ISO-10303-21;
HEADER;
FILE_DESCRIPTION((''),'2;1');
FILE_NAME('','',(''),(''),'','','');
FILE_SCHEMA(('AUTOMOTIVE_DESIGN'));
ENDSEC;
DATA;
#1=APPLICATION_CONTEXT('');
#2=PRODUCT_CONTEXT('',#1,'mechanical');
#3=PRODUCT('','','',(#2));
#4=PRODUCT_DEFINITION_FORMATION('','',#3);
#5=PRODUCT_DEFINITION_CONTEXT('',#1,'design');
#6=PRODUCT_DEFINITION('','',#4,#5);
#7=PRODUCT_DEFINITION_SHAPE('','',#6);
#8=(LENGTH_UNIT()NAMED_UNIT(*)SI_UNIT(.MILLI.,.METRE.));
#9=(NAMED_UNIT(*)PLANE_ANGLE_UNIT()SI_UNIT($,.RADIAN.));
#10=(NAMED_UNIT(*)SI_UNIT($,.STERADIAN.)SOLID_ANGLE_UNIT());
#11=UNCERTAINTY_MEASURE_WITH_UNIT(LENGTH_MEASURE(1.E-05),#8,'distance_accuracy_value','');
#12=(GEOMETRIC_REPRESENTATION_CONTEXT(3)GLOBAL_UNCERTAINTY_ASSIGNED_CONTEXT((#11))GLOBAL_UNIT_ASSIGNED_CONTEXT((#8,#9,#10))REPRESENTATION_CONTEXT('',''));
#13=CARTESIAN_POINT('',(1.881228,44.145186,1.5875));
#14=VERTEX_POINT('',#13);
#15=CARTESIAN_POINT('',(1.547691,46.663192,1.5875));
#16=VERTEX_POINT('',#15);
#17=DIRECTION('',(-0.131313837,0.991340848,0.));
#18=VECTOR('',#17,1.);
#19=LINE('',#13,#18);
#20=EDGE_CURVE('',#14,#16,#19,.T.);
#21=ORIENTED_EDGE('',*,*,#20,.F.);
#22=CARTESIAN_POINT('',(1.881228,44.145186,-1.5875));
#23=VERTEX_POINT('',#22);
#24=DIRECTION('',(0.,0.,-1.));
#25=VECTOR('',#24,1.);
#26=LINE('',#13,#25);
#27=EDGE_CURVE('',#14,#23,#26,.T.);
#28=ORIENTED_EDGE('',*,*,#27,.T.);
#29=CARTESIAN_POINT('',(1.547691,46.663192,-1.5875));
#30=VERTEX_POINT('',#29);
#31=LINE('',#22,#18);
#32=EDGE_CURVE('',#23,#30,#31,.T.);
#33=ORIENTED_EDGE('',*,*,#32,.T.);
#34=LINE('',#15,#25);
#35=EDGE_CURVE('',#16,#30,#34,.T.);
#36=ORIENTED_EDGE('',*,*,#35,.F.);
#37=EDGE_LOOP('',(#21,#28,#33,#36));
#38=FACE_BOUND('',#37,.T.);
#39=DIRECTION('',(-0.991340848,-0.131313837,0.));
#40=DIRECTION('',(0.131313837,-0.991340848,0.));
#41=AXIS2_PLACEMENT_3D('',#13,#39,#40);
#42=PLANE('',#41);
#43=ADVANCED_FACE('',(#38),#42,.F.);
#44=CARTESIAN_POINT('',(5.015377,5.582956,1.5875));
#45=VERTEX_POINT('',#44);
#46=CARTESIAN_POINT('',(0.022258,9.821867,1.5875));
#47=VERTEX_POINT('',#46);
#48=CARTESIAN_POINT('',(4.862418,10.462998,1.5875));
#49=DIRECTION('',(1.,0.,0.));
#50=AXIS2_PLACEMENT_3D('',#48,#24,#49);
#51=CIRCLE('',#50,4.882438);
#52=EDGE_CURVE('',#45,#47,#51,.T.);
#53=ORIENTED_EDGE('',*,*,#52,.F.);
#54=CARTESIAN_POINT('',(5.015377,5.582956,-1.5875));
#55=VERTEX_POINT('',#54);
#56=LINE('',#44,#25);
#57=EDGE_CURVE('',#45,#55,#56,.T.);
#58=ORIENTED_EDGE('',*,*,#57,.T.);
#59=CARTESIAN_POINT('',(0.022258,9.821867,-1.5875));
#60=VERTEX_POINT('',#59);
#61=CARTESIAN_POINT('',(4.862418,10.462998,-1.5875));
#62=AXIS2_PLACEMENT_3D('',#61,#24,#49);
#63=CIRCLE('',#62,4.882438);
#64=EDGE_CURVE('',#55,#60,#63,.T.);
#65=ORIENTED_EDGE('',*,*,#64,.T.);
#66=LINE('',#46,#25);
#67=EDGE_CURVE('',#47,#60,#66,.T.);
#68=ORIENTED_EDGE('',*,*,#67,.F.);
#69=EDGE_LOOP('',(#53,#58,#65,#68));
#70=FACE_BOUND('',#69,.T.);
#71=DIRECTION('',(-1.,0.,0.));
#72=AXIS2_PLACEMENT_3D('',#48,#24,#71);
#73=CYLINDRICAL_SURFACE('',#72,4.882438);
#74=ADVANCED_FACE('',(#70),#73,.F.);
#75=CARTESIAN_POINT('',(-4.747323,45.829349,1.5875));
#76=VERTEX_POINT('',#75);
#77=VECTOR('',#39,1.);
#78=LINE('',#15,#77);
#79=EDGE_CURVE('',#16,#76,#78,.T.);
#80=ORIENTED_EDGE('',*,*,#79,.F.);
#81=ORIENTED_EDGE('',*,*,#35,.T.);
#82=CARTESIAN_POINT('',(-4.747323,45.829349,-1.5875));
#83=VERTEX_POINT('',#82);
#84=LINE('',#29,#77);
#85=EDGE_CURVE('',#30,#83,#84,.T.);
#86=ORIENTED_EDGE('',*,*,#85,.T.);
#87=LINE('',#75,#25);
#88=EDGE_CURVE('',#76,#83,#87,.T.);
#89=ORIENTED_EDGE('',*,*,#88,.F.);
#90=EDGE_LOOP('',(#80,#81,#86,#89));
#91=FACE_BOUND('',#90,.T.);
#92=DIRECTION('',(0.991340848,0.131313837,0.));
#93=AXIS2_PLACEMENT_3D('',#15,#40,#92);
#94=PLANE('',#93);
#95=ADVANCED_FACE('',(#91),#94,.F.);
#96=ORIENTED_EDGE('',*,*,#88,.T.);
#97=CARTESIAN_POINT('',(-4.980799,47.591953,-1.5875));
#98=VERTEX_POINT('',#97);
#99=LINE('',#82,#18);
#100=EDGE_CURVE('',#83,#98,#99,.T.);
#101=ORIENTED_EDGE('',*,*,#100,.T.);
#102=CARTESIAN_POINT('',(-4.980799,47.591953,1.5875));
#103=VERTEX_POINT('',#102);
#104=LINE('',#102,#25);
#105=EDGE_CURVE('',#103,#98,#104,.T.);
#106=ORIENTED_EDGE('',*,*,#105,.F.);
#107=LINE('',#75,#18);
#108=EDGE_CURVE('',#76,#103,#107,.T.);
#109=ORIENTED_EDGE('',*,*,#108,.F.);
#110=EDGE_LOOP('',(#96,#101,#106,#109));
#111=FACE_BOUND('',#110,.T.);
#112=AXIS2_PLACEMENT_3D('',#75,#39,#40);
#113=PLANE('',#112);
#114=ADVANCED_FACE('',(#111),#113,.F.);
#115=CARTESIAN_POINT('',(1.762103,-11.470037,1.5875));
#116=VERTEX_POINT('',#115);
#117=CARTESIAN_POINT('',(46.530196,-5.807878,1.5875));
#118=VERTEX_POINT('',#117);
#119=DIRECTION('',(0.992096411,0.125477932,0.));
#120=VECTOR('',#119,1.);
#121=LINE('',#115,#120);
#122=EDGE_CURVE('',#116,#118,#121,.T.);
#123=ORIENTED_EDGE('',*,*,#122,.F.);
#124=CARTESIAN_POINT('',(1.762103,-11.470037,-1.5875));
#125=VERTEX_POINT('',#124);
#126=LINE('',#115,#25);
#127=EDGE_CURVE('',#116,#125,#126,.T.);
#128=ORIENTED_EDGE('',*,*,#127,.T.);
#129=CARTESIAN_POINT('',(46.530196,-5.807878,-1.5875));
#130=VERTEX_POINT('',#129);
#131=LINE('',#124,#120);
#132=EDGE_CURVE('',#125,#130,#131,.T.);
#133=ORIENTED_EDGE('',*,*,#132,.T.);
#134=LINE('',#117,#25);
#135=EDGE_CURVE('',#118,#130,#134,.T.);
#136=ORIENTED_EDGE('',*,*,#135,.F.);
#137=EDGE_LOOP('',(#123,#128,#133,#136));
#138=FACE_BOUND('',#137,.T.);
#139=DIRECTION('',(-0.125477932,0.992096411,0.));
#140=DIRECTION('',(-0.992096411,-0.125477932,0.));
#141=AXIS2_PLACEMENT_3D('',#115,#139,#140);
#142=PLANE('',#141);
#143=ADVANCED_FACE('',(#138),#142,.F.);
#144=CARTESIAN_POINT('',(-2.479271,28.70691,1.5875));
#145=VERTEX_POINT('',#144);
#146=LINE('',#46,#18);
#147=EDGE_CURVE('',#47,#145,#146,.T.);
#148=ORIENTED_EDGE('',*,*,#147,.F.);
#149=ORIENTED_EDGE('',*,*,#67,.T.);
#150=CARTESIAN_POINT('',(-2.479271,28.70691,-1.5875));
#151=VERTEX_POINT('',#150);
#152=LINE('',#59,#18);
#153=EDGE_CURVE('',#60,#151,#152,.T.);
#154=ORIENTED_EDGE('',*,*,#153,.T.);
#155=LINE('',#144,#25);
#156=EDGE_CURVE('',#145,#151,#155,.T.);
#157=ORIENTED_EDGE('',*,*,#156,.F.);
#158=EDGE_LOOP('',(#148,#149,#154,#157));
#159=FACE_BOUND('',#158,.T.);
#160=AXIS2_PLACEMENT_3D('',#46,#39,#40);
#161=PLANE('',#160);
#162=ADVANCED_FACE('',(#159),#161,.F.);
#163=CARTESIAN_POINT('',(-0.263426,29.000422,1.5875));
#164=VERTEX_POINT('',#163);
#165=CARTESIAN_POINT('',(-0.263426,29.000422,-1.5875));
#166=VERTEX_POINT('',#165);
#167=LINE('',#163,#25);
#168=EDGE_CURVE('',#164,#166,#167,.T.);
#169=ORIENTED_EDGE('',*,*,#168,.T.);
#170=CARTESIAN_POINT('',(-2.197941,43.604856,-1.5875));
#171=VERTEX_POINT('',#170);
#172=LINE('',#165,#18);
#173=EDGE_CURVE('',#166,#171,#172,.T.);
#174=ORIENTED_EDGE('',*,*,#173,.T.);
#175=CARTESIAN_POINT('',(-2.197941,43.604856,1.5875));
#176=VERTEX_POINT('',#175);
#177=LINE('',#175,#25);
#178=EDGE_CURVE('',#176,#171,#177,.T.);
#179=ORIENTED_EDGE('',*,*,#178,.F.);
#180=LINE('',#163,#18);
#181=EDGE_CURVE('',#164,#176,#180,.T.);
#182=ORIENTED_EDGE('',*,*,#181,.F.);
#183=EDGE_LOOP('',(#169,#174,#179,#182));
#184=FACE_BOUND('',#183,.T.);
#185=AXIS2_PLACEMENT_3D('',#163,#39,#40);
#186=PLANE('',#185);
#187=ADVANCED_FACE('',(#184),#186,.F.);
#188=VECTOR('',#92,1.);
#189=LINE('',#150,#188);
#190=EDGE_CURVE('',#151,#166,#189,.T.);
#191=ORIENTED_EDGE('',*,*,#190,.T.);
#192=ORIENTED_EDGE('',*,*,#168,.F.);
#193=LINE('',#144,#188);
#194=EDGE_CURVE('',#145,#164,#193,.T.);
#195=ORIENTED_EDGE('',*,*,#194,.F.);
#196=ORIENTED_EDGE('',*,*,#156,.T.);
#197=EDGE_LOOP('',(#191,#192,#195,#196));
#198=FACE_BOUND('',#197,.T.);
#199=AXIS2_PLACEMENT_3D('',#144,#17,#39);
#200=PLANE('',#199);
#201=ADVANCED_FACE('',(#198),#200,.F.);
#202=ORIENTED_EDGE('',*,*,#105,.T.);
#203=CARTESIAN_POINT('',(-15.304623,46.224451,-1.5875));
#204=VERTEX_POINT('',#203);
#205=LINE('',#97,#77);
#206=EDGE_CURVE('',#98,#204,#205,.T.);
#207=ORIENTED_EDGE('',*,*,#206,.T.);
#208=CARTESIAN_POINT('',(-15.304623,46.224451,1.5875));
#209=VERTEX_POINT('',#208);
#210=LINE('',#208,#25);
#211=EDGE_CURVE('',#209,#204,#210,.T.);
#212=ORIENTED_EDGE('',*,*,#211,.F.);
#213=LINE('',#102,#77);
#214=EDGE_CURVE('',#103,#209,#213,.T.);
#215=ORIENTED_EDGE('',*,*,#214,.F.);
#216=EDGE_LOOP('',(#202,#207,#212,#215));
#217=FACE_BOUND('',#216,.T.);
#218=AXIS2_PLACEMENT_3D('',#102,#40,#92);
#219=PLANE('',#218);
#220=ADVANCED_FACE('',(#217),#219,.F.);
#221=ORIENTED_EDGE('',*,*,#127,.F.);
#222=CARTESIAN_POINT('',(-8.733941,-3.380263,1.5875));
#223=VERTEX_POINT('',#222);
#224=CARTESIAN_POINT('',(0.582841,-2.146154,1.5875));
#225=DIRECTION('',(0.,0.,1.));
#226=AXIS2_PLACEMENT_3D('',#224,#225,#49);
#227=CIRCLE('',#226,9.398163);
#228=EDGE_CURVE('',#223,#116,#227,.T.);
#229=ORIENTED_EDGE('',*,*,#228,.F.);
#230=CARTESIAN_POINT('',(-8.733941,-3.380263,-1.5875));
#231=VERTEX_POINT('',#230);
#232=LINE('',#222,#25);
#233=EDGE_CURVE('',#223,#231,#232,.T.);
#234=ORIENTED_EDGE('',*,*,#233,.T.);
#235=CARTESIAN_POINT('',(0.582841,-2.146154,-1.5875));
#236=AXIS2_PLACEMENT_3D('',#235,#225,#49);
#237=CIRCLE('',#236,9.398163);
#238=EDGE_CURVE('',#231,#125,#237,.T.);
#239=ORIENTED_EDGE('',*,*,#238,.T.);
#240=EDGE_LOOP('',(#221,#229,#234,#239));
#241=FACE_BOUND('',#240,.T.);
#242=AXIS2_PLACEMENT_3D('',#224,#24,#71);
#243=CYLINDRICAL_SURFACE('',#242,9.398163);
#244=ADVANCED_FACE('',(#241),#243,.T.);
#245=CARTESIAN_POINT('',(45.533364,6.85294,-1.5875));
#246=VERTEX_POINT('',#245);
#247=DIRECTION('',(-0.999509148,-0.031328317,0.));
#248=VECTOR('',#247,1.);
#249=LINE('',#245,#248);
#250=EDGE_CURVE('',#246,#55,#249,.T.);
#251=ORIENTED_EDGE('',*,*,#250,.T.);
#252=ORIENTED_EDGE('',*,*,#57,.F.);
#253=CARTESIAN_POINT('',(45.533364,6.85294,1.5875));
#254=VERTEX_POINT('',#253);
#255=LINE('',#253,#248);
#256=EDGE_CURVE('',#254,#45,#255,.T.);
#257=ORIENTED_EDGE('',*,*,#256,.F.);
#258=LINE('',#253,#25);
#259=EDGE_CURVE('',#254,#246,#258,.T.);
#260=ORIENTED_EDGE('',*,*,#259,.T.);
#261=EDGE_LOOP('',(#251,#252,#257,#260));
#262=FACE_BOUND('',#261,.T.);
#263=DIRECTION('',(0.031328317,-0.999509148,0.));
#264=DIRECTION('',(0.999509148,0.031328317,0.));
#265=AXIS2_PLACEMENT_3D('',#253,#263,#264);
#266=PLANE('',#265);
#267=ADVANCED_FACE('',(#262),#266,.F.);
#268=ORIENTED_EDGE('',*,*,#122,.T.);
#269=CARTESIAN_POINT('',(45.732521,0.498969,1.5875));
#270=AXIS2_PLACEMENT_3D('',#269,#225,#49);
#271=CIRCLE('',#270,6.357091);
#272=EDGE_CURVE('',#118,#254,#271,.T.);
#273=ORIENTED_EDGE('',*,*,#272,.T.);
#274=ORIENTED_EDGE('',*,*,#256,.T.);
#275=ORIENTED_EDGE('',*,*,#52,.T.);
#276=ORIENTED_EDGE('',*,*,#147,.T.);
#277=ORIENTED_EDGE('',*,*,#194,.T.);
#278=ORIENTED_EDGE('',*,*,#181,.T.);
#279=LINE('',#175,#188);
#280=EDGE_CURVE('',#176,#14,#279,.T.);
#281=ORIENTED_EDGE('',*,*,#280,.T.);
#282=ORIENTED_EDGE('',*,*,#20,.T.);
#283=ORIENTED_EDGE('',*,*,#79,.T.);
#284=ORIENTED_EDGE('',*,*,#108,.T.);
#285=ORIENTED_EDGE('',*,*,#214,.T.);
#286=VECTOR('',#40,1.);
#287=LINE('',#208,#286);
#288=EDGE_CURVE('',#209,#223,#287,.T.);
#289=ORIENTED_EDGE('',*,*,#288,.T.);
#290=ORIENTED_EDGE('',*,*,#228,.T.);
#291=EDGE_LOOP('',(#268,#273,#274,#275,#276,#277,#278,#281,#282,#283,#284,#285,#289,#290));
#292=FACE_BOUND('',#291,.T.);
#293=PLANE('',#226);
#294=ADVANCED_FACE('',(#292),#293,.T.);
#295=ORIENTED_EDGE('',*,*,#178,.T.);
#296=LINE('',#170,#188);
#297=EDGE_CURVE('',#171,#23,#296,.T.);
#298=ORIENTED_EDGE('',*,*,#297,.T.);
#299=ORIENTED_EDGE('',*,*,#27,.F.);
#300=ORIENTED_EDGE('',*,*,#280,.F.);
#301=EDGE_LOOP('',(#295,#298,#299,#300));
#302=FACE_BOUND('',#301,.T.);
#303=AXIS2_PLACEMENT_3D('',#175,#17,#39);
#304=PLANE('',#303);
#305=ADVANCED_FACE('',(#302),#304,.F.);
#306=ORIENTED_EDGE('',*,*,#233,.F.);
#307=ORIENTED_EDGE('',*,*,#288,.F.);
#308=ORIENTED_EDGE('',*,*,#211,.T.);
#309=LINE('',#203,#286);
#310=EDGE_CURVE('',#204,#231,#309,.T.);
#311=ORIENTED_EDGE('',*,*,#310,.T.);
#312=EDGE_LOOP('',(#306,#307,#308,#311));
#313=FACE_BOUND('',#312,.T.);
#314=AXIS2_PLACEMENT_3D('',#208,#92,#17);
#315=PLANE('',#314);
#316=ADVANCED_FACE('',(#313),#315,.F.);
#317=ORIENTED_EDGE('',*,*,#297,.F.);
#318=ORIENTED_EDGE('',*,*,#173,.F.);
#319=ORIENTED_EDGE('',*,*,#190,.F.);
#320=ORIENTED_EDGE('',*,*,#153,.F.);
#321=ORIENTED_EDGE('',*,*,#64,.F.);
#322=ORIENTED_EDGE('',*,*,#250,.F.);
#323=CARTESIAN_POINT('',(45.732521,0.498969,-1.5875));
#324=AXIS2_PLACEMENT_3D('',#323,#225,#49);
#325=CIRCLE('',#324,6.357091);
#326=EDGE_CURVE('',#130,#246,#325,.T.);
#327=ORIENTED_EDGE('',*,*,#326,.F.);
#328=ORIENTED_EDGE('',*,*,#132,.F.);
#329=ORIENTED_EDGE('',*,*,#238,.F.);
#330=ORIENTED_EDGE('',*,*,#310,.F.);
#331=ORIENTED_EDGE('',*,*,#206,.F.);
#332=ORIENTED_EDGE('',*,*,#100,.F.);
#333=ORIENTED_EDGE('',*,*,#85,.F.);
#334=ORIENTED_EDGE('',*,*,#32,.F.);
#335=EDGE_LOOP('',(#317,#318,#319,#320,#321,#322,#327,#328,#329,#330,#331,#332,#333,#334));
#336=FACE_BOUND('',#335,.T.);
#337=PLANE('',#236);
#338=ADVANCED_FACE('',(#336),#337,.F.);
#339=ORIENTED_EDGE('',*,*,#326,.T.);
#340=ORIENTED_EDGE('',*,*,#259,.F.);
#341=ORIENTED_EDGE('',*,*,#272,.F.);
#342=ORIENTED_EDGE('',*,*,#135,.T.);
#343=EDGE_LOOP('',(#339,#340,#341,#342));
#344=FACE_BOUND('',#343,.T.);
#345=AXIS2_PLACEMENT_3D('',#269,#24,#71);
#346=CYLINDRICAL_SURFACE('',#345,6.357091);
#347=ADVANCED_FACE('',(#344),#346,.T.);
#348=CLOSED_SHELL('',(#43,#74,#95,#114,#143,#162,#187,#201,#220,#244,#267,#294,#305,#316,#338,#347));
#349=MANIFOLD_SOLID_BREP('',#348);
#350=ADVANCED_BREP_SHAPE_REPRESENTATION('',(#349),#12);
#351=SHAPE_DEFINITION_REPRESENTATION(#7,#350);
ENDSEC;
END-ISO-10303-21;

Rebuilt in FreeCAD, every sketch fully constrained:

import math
import FreeCAD as App
import Part
import Sketcher
from FreeCAD import Vector
Q = App.Units.Quantity

doc = App.newDocument("Part")
body = doc.addObject("PartDesign::Body", "Body")

# Sketch on XY plane
sketch1 = body.newObject("Sketcher::SketchObject", "Sketch")
sketch1.AttachmentSupport = (doc.getObject("XY_Plane"), [""])
sketch1.MapMode = "FlatFace"
sketch1.addGeometry(Part.LineSegment(Vector(0.022258, 9.821867, 0), Vector(-2.479271, 28.70691, 0)), False)
sketch1.addGeometry(Part.LineSegment(Vector(-2.479271, 28.70691, 0), Vector(-0.263426, 29.000422, 0)), False)
sketch1.addGeometry(Part.LineSegment(Vector(-0.263426, 29.000422, 0), Vector(-2.197941, 43.604856, 0)), False)
sketch1.addGeometry(Part.LineSegment(Vector(-2.197941, 43.604856, 0), Vector(1.881228, 44.145186, 0)), False)
sketch1.addGeometry(Part.LineSegment(Vector(1.881228, 44.145186, 0), Vector(1.547691, 46.663192, 0)), False)
sketch1.addGeometry(Part.LineSegment(Vector(1.547691, 46.663192, 0), Vector(-4.747323, 45.829349, 0)), False)
sketch1.addGeometry(Part.LineSegment(Vector(-4.747323, 45.829349, 0), Vector(-4.980799, 47.591953, 0)), False)
sketch1.addGeometry(Part.LineSegment(Vector(-4.980799, 47.591953, 0), Vector(-15.304623, 46.224451, 0)), False)
sketch1.addGeometry(Part.LineSegment(Vector(-15.304623, 46.224451, 0), Vector(-8.733941, -3.380263, 0)), False)
sketch1.addGeometry(Part.ArcOfCircle(Part.Circle(Vector(0.582841, -2.146154, 0), Vector(0, 0, 1), 9.398163), math.radians(-172.454479), math.radians(-82.791643)), False)
sketch1.addGeometry(Part.LineSegment(Vector(1.762103, -11.470037, 0), Vector(46.530196, -5.807878, 0)), False)
sketch1.addGeometry(Part.ArcOfCircle(Part.Circle(Vector(45.732521, 0.498969, 0), Vector(0, 0, 1), 6.357091), math.radians(-82.791643), math.radians(91.795274)), False)
sketch1.addGeometry(Part.LineSegment(Vector(45.533364, 6.85294, 0), Vector(5.015377, 5.582956, 0)), False)
sketch1.addGeometry(Part.ArcOfCircle(Part.Circle(Vector(4.862418, 10.462998, 0), Vector(0, 0, 1), 4.882438), math.radians(-172.454479), math.radians(-88.204726)), False)
sketch1.addConstraint(Sketcher.Constraint("Coincident", 0, 2, 1, 1))
sketch1.addConstraint(Sketcher.Constraint("Coincident", 1, 2, 2, 1))
sketch1.addConstraint(Sketcher.Constraint("Coincident", 2, 2, 3, 1))
sketch1.addConstraint(Sketcher.Constraint("Coincident", 3, 2, 4, 1))
sketch1.addConstraint(Sketcher.Constraint("Coincident", 4, 2, 5, 1))
sketch1.addConstraint(Sketcher.Constraint("Coincident", 5, 2, 6, 1))
sketch1.addConstraint(Sketcher.Constraint("Coincident", 6, 2, 7, 1))
sketch1.addConstraint(Sketcher.Constraint("Coincident", 7, 2, 8, 1))
sketch1.addConstraint(Sketcher.Constraint("Tangent", 8, 2, 9, 1))
sketch1.addConstraint(Sketcher.Constraint("Tangent", 9, 2, 10, 1))
sketch1.addConstraint(Sketcher.Constraint("Tangent", 10, 2, 11, 1))
sketch1.addConstraint(Sketcher.Constraint("Tangent", 11, 2, 12, 1))
sketch1.addConstraint(Sketcher.Constraint("Tangent", 12, 2, 13, 2))
sketch1.addConstraint(Sketcher.Constraint("Tangent", 13, 1, 0, 1))
sketch1.addConstraint(Sketcher.Constraint("Perpendicular", 0, 1))
sketch1.addConstraint(Sketcher.Constraint("Perpendicular", 1, 2))
sketch1.addConstraint(Sketcher.Constraint("Perpendicular", 2, 3))
sketch1.addConstraint(Sketcher.Constraint("Perpendicular", 3, 4))
sketch1.addConstraint(Sketcher.Constraint("Perpendicular", 4, 5))
sketch1.addConstraint(Sketcher.Constraint("Perpendicular", 5, 6))
sketch1.addConstraint(Sketcher.Constraint("Perpendicular", 6, 7))
sketch1.addConstraint(Sketcher.Constraint("Perpendicular", 7, 8))
sketch1.addConstraint(Sketcher.Constraint("Distance", 4, Q("0.1 in")))
sketch1.addConstraint(Sketcher.Constraint("Distance", 0, Q("0.75 in")))
sketch1.addConstraint(Sketcher.Constraint("Distance", 2, Q("0.58 in")))
sketch1.addConstraint(Sketcher.Constraint("Distance", 5, Q("0.25 in")))
sketch1.addConstraint(Sketcher.Constraint("Distance", 6, Q("0.07 in")))
sketch1.addConstraint(Sketcher.Constraint("Distance", 7, Q("0.41 in")))
sketch1.addConstraint(Sketcher.Constraint("Distance", 8, Q("1.97 in")))
sketch1.addConstraint(Sketcher.Constraint("Distance", 1, Q("0.088 in")))
sketch1.addConstraint(Sketcher.Constraint("Distance", 3, Q("0.162 in")))
sketch1.addConstraint(Sketcher.Constraint("Radius", 11, Q("6.357091 mm")))
sketch1.addConstraint(Sketcher.Constraint("Radius", 13, Q("4.882438 mm")))
sketch1.addConstraint(Sketcher.Constraint("Radius", 9, Q("9.398163 mm")))
sketch1.addConstraint(Sketcher.Constraint("DistanceY", -1, 1, 13, 3, Q("10.462998 mm")))
sketch1.addConstraint(Sketcher.Constraint("DistanceX", 6, 2, -1, 1, Q("4.980799 mm")))
sketch1.addConstraint(Sketcher.Constraint("DistanceX", 0, 2, 3, 2, Q("4.360499 mm")))
sketch1.addConstraint(Sketcher.Constraint("Distance", 10, Q("45.12474 mm")))
sketch1.addConstraint(Sketcher.Constraint("DistanceX", -1, 1, 11, 3, Q("45.732521 mm")))
pad1 = body.newObject("PartDesign::Pad", "Pad")
pad1.Profile = sketch1
pad1.Length = Q("0.125 in")
pad1.Midplane = True

doc.recompute()
